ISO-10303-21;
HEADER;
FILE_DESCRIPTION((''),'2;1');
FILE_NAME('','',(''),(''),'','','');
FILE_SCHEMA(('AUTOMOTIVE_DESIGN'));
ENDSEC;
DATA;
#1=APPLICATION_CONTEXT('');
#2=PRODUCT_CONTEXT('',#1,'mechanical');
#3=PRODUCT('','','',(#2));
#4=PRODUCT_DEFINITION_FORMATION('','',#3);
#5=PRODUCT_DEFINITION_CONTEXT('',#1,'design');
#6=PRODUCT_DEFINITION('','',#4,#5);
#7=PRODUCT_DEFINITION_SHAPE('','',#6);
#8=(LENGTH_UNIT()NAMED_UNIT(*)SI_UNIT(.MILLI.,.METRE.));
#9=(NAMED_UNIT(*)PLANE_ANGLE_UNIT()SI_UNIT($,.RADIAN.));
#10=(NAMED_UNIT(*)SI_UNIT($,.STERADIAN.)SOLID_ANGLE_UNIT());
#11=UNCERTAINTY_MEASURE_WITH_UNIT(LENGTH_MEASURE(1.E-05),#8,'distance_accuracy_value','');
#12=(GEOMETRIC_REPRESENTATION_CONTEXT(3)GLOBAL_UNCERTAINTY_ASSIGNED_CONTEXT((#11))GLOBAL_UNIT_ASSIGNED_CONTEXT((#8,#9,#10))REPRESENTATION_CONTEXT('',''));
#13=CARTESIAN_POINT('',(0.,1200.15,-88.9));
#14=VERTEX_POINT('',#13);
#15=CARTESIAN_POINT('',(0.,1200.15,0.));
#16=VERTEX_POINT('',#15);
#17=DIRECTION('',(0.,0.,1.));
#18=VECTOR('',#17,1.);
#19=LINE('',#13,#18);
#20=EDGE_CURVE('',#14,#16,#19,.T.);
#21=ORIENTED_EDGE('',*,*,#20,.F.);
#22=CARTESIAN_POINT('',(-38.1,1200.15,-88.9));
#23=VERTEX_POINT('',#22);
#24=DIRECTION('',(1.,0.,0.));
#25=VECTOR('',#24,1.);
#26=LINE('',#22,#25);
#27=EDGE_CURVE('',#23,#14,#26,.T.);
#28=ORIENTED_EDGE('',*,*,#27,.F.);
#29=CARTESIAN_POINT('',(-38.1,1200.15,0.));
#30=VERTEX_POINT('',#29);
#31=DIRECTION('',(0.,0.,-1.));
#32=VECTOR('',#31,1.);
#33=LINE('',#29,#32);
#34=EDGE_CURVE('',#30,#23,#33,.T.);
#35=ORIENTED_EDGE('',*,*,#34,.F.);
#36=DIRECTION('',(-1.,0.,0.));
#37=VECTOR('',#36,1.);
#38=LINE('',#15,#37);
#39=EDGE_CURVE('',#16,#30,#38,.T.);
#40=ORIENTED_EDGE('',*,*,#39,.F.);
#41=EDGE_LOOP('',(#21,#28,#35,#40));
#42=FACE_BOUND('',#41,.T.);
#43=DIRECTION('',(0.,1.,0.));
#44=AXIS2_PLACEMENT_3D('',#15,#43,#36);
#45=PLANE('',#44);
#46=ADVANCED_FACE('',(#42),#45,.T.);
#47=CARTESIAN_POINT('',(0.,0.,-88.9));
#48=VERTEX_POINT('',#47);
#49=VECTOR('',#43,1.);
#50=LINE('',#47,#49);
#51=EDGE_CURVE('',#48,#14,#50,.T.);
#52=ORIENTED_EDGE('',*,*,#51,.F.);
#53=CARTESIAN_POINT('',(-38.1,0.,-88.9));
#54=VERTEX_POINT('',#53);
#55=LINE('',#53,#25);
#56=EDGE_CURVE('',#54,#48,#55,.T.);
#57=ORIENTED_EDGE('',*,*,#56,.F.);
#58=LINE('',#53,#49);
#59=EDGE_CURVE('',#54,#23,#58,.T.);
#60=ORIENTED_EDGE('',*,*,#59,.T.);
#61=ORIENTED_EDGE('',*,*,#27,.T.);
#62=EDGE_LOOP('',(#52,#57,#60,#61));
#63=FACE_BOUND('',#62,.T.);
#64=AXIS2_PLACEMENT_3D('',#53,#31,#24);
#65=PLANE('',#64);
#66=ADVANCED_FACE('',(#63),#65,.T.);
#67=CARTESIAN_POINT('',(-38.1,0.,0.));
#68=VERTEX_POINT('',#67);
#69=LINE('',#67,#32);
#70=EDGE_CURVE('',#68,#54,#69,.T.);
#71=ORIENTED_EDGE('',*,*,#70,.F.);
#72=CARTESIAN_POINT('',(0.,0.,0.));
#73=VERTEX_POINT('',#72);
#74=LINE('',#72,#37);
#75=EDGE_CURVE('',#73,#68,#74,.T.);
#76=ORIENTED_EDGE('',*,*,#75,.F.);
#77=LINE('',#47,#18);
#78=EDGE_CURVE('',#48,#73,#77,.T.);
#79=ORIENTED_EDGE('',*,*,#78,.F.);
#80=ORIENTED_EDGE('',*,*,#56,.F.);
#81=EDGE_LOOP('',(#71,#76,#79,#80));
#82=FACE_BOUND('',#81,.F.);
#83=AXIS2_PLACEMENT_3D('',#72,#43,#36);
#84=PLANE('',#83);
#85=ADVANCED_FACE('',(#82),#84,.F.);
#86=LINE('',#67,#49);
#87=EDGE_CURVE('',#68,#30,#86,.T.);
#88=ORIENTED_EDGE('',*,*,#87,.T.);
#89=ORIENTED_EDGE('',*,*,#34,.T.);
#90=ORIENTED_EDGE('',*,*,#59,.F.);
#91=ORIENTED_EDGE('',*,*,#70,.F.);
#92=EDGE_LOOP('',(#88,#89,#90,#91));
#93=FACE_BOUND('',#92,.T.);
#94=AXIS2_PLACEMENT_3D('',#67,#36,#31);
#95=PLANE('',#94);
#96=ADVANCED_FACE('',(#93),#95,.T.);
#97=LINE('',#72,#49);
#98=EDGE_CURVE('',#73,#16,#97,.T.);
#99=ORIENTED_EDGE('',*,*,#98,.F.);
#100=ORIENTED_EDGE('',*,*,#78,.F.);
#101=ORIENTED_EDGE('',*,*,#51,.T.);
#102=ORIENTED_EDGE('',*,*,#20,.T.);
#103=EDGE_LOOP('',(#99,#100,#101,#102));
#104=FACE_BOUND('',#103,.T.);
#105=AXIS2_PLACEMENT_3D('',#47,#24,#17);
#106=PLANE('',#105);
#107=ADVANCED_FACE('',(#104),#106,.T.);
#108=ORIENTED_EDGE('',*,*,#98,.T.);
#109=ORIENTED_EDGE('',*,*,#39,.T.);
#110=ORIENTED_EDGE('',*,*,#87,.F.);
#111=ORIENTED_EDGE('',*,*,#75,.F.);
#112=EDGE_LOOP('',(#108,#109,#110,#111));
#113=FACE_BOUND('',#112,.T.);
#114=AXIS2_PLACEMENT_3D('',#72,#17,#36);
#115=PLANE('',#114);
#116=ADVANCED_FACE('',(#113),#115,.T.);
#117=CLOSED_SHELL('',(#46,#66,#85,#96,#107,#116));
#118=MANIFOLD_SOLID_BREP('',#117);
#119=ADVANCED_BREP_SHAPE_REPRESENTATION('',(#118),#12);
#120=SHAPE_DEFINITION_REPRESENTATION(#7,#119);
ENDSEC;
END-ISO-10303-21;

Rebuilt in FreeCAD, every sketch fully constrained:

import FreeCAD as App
import Part
import Sketcher
Q = App.Units.Quantity


def add_polygon(sketch, points):
    """Adds a closed chain of lines whose ends are joined by coincident constraints."""
    first, n = sketch.GeometryCount, len(points)
    for a, b in zip(points, points[1:] + points[:1]):
        sketch.addGeometry(Part.LineSegment(App.Vector(*a, 0), App.Vector(*b, 0)), False)
    for i in range(n):
        sketch.addConstraint(Sketcher.Constraint("Coincident", first + i, 2, first + (i + 1) % n, 1))

doc = App.newDocument("Part")
body = doc.addObject("PartDesign::Body", "Body")

# Sketch on XZ plane
sketch1 = body.newObject("Sketcher::SketchObject", "Sketch")
sketch1.AttachmentSupport = (doc.getObject("XZ_Plane"), [""])
sketch1.MapMode = "FlatFace"
add_polygon(sketch1, [(-38, 0), (0, 0), (0, -89), (-38, -89)])  # lines 0-3
sketch1.addConstraint([
    Sketcher.Constraint("Horizontal", 0),
    Sketcher.Constraint("Vertical", 1),
    Sketcher.Constraint("Horizontal", 2),
    Sketcher.Constraint("Vertical", 3),
    Sketcher.Constraint("Coincident", 0, 2, -1, 1),
    Sketcher.Constraint("DistanceX", 0, 1, 0, 2, Q("1.5 in")),
    Sketcher.Constraint("DistanceY", 1, 2, 1, 1, Q("3.5 in")),
])
pad1 = body.newObject("PartDesign::Pad", "Pad")
pad1.Profile = sketch1
pad1.Length = Q("47.25 in")
pad1.Reversed = True

doc.recompute()
